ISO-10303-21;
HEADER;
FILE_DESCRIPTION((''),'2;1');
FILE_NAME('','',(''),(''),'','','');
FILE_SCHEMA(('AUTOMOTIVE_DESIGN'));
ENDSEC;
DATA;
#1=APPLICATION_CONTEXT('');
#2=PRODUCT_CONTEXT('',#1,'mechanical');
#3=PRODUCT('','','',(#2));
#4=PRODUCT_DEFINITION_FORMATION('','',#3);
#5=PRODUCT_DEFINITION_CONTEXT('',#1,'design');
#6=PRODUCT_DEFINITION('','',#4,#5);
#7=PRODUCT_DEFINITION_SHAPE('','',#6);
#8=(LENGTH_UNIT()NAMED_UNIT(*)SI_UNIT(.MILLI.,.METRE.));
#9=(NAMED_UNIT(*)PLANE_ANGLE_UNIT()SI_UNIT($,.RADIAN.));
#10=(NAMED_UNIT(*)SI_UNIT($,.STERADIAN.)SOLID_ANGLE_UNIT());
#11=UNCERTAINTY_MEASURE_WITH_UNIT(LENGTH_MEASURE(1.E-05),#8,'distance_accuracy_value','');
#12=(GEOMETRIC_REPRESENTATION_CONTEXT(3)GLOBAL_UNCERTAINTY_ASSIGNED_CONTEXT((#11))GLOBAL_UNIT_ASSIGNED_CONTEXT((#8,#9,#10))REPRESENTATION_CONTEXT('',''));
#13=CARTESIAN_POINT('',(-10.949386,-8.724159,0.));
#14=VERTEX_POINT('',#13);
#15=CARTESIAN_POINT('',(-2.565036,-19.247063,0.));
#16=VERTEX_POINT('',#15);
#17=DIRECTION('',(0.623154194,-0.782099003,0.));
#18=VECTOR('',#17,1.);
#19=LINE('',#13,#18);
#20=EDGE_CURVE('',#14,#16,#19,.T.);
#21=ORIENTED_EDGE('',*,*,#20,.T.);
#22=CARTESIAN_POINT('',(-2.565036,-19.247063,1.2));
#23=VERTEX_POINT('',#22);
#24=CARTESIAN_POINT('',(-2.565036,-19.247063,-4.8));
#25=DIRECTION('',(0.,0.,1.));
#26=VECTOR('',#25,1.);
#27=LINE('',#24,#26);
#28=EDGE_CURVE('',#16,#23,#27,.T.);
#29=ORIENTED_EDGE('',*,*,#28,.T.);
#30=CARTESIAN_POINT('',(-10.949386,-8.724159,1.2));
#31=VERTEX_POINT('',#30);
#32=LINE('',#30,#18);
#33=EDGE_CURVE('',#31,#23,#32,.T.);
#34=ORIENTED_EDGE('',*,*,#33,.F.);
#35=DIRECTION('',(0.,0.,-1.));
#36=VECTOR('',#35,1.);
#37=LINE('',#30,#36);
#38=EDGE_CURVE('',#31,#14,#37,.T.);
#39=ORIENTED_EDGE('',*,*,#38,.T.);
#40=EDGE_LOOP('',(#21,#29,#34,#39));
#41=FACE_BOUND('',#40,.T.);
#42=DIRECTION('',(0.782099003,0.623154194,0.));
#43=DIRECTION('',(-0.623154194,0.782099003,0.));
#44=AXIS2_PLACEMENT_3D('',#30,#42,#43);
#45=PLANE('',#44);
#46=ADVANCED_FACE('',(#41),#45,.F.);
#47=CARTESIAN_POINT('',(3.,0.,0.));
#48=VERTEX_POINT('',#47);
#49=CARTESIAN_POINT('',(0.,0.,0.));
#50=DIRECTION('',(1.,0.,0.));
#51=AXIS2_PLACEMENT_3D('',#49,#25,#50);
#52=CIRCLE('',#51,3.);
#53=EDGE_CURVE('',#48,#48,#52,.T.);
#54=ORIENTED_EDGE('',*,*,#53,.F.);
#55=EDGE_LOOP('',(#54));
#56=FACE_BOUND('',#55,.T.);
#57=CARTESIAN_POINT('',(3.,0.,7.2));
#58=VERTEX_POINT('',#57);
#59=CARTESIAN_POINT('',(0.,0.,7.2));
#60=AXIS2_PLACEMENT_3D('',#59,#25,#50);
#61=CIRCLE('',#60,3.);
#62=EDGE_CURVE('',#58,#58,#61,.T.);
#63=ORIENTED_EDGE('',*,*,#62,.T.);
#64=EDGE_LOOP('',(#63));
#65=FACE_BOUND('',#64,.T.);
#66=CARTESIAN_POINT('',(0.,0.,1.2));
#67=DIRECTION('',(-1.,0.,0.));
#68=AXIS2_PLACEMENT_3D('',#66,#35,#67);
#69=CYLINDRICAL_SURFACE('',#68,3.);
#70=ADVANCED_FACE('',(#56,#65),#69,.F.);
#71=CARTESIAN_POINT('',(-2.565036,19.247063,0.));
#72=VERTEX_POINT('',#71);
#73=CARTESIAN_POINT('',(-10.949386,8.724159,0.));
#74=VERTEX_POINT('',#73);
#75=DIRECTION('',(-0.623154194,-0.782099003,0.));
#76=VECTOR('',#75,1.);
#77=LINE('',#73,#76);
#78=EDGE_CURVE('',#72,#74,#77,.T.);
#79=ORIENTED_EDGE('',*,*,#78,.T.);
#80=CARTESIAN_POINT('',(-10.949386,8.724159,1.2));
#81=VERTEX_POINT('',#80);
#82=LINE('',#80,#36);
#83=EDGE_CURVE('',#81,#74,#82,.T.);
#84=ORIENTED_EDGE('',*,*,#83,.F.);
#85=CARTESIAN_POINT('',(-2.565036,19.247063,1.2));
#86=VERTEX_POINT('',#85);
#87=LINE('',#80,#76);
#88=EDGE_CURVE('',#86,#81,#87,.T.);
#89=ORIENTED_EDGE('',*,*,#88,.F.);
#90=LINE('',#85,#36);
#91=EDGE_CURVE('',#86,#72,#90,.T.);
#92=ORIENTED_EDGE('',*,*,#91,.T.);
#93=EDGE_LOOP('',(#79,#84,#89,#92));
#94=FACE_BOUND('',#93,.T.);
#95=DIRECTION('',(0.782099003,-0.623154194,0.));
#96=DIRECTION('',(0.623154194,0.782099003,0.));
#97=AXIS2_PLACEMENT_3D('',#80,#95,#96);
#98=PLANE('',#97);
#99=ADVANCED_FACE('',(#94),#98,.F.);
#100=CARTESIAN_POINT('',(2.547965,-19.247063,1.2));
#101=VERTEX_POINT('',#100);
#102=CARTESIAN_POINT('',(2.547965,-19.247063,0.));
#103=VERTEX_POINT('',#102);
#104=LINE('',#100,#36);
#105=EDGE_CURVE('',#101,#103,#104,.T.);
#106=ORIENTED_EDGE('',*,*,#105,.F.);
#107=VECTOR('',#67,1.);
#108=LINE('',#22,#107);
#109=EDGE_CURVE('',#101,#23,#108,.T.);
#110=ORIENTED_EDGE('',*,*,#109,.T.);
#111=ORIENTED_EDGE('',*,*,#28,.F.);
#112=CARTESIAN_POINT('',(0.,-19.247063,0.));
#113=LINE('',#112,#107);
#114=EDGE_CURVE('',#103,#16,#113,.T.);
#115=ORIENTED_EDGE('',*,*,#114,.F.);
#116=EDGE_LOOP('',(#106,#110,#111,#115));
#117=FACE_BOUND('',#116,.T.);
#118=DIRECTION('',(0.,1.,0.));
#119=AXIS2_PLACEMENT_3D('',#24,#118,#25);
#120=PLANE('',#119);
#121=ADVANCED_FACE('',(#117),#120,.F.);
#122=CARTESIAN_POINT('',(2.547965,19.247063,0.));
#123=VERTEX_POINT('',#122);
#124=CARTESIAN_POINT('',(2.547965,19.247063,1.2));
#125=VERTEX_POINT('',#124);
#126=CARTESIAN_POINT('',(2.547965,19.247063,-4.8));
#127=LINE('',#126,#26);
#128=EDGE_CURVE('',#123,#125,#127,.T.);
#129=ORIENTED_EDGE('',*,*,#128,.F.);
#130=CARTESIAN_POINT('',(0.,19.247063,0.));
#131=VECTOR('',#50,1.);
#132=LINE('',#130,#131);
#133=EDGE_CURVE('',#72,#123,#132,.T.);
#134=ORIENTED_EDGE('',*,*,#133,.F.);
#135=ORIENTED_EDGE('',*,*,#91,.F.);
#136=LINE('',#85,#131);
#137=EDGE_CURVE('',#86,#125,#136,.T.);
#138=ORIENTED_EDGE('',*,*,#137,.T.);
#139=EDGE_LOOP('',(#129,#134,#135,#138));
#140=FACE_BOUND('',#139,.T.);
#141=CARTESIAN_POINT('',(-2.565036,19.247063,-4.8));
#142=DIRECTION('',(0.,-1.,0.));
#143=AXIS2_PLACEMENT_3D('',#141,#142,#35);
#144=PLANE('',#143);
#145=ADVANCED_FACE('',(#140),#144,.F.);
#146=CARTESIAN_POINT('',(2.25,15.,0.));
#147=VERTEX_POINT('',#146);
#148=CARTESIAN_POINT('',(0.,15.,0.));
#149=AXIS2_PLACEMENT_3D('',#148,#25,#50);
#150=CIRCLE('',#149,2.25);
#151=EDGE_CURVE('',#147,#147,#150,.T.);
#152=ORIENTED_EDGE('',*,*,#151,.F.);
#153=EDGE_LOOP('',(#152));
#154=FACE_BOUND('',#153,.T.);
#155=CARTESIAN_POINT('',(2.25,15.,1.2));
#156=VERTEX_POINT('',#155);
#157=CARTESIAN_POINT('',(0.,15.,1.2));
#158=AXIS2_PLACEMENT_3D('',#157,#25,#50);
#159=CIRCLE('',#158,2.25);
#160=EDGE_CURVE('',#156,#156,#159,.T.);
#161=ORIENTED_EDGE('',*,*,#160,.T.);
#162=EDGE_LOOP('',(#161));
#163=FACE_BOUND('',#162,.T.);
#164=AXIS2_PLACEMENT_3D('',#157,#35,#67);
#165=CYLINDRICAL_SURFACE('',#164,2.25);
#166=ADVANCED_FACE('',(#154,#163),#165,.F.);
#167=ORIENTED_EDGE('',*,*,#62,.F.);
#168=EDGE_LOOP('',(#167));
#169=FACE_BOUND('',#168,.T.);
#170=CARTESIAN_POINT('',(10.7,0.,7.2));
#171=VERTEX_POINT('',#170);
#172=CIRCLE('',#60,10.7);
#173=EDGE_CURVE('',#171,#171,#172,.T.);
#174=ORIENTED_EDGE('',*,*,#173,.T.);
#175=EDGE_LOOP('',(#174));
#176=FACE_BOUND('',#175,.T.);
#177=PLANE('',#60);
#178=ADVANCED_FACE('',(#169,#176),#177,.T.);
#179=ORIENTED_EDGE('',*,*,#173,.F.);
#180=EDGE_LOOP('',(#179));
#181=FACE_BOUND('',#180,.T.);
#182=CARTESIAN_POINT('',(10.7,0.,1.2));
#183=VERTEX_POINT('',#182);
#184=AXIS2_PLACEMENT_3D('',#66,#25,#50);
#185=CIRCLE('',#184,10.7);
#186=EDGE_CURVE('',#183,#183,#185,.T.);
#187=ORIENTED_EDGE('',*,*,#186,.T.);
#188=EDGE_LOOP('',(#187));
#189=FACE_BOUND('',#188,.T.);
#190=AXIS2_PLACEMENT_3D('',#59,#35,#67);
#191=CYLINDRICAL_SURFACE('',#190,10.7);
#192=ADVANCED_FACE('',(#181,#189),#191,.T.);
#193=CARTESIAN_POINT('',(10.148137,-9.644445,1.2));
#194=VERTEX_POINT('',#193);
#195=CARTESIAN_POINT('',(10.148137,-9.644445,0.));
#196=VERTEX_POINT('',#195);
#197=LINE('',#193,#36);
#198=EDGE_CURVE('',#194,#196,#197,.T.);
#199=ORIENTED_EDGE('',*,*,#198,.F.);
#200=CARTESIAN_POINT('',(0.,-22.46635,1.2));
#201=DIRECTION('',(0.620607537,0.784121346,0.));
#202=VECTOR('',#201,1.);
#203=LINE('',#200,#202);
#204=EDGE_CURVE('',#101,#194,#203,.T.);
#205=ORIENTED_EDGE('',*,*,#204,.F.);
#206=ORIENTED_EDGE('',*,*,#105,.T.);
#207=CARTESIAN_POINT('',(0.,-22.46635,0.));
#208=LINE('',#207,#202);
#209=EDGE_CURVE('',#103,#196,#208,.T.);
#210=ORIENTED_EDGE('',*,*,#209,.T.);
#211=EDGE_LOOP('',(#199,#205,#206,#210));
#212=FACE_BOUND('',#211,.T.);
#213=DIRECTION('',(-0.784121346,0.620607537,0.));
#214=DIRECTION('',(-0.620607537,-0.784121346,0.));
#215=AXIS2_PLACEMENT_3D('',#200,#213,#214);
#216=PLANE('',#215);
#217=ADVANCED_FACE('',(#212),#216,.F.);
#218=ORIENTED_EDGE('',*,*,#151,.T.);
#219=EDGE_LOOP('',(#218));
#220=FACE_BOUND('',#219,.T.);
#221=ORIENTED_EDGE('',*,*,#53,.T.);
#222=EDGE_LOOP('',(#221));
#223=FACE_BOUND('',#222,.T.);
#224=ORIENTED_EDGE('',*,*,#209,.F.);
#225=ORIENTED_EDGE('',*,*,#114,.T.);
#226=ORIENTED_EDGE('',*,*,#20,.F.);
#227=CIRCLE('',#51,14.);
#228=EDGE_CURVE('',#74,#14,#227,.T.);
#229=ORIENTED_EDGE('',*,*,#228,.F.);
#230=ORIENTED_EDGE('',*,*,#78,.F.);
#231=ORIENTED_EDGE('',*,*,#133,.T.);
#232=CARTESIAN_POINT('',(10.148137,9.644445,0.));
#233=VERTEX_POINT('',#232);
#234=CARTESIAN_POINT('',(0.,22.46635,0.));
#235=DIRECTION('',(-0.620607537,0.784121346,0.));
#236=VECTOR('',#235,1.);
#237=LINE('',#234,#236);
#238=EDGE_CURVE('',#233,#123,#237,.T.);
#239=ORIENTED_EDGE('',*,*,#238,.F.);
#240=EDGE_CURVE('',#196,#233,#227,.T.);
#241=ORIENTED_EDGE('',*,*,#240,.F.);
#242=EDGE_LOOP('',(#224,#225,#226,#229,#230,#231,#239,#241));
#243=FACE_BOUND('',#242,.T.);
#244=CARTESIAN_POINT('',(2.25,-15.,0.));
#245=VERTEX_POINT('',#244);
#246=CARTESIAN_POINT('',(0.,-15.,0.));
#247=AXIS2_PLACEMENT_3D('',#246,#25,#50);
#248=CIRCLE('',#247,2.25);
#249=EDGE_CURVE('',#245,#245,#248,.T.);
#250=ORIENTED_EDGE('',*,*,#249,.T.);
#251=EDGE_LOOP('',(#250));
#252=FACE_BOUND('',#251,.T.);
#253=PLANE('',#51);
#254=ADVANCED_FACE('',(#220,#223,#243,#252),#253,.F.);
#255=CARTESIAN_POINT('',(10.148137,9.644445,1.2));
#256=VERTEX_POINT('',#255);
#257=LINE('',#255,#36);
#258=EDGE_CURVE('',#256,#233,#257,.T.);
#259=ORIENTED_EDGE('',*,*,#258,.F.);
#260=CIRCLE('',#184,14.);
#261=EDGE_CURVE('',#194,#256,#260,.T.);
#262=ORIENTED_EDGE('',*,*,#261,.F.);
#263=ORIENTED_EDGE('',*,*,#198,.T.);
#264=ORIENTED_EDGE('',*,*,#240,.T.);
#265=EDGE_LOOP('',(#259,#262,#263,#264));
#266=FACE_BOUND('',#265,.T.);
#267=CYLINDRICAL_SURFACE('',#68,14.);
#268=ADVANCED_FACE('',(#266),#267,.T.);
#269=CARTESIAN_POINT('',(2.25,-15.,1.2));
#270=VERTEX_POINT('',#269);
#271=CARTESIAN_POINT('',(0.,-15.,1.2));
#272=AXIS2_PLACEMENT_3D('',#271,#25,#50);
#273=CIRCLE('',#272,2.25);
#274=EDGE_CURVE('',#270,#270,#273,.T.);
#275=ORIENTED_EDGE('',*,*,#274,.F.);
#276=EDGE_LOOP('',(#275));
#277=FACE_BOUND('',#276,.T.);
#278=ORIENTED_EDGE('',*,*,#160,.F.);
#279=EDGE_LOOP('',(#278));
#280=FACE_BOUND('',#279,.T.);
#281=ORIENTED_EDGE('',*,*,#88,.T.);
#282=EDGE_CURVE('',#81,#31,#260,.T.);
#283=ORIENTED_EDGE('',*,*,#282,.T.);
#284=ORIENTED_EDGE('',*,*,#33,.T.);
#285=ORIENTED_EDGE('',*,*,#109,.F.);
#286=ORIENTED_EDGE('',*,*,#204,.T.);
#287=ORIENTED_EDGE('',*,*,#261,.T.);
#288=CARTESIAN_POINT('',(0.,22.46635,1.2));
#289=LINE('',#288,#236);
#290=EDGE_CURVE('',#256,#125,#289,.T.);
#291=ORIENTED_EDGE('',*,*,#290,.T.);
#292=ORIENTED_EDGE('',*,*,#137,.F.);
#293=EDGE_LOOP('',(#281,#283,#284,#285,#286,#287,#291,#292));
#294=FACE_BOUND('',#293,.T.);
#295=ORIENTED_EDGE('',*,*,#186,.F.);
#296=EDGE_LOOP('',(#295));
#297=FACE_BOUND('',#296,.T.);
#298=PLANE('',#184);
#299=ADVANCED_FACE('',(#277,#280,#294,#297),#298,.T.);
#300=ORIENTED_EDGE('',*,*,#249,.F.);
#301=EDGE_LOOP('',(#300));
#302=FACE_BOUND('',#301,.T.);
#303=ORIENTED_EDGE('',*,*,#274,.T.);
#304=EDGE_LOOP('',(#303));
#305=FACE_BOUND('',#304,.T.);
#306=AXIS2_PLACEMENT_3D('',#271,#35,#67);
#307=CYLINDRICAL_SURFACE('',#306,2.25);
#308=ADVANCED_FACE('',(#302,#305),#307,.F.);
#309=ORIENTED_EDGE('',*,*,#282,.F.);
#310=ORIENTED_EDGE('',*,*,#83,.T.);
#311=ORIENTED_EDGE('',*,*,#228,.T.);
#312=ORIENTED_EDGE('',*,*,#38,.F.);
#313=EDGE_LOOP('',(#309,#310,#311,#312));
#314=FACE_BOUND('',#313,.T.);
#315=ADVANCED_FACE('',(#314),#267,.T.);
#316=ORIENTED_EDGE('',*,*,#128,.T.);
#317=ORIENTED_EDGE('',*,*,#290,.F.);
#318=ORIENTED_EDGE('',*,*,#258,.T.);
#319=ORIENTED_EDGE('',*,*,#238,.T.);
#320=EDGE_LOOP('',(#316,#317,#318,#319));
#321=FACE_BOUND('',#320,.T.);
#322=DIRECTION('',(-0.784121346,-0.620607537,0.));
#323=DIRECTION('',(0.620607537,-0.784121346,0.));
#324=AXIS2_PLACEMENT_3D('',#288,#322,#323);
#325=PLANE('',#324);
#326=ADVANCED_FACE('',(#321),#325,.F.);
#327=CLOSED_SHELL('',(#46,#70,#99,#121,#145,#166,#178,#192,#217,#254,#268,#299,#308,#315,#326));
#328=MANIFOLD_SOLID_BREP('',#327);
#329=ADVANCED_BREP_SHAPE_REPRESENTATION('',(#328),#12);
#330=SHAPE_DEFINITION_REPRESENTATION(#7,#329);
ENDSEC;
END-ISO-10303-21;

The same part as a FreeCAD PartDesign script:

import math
import FreeCAD as App
import Part
import Sketcher
from FreeCAD import Vector

doc = App.newDocument("Part")
body = doc.addObject("PartDesign::Body", "Body")

# Sketch on XY plane
sketch1 = body.newObject("Sketcher::SketchObject", "Sketch")
sketch1.AttachmentSupport = (doc.getObject("XY_Plane"), [""])
sketch1.MapMode = "FlatFace"
sketch1.addGeometry(Part.LineSegment(Vector(0, 22.5, 0), Vector(-10.9, 8.7, 0)), False)
sketch1.addGeometry(Part.ArcOfCircle(Part.Circle(Vector(0, 0, 0), Vector(0, 0, 1), 14), math.radians(141), math.radians(219)), False)
sketch1.addGeometry(Part.LineSegment(Vector(-10.9, -8.7, 0), Vector(0, -22.5, 0)), False)
sketch1.addGeometry(Part.LineSegment(Vector(0, -22.5, 0), Vector(10.1, -9.6, 0)), False)
sketch1.addGeometry(Part.ArcOfCircle(Part.Circle(Vector(0, 0, 0), Vector(0, 0, 1), 14), math.radians(-44), math.radians(44)), False)
sketch1.addGeometry(Part.LineSegment(Vector(10.1, 9.6, 0), Vector(0, 22.5, 0)), False)
sketch1.addGeometry(Part.Circle(Vector(0, -15, 0), Vector(0, 0, 1), 2.2), False)
sketch1.addGeometry(Part.Circle(Vector(0, 0, 0), Vector(0, 0, 1), 3), False)
sketch1.addGeometry(Part.Circle(Vector(0, 15, 0), Vector(0, 0, 1), 2.2), False)
sketch1.addConstraint(Sketcher.Constraint("Tangent", 0, 2, 1, 1))
sketch1.addConstraint(Sketcher.Constraint("Tangent", 1, 2, 2, 1))
sketch1.addConstraint(Sketcher.Constraint("Coincident", 2, 2, 3, 1))
sketch1.addConstraint(Sketcher.Constraint("Coincident", 3, 2, 4, 1))
sketch1.addConstraint(Sketcher.Constraint("Coincident", 4, 2, 5, 1))
sketch1.addConstraint(Sketcher.Constraint("Coincident", 5, 2, 0, 1))
sketch1.addConstraint(Sketcher.Constraint("Coincident", 1, 3, -1, 1))
sketch1.addConstraint(Sketcher.Constraint("Coincident", 4, 3, -1, 1))
sketch1.addConstraint(Sketcher.Constraint("Coincident", 7, 3, -1, 1))
sketch1.addConstraint(Sketcher.Constraint("Equal", 1, 4))
sketch1.addConstraint(Sketcher.Constraint("Equal", 6, 8))
sketch1.addConstraint(Sketcher.Constraint("Symmetric", 6, 3, 8, 3, -1, 1))
sketch1.addConstraint(Sketcher.Constraint("Symmetric", 2, 2, 5, 2, -1, 1))
sketch1.addConstraint(Sketcher.Constraint("PointOnObject", 6, 3, -2))
sketch1.addConstraint(Sketcher.Constraint("PointOnObject", 2, 2, -2))
sketch1.addConstraint(Sketcher.Constraint("Vertical", 3, 2, 4, 2))
sketch1.addConstraint(Sketcher.Constraint("Diameter", 7, 6.0))
sketch1.addConstraint(Sketcher.Constraint("Radius", 1, 14.0))
sketch1.addConstraint(Sketcher.Constraint("Diameter", 6, 4.5))
sketch1.addConstraint(Sketcher.Constraint("DistanceY", 6, 3, -1, 1, 15.0))
sketch1.addConstraint(Sketcher.Constraint("Distance", 0, 17.57091))
sketch1.addConstraint(Sketcher.Constraint("Distance", 3, 16.351939))
pad1 = body.newObject("PartDesign::Pad", "Pad")
pad1.Profile = sketch1
pad1.Length = 1.2

# Sketch on XY plane
sketch2 = body.newObject("Sketcher::SketchObject", "Sketch001")
sketch2.AttachmentSupport = (doc.getObject("XY_Plane"), [""])
sketch2.MapMode = "FlatFace"
sketch2.AttachmentOffset = App.Placement(Vector(0, 0, 1.2), App.Rotation())
sketch2.addGeometry(Part.Circle(Vector(0, 0, 0), Vector(0, 0, 1), 10.7), False)
sketch2.addGeometry(Part.Circle(Vector(0, 0, 0), Vector(0, 0, 1), 3), False)
sketch2.addConstraint(Sketcher.Constraint("Coincident", 0, 3, -1, 1))
sketch2.addConstraint(Sketcher.Constraint("Coincident", 1, 3, -1, 1))
sketch2.addConstraint(Sketcher.Constraint("Diameter", 1, 6.0))
sketch2.addConstraint(Sketcher.Constraint("Diameter", 0, 21.4))
pad2 = body.newObject("PartDesign::Pad", "Pad001")
pad2.Profile = sketch2
pad2.Length = 6

# Sketch on XY plane
sketch3 = body.newObject("Sketcher::SketchObject", "Sketch002")
sketch3.AttachmentSupport = (doc.getObject("XY_Plane"), [""])
sketch3.MapMode = "FlatFace"
sketch3.AttachmentOffset = App.Placement(Vector(0, 0, 1.2), App.Rotation())
sketch3.addGeometry(Part.LineSegment(Vector(-2.6, 19.2, 0), Vector(2.5, 19.2, 0)), False)
sketch3.addGeometry(Part.LineSegment(Vector(2.5, 19.2, 0), Vector(0, 22.5, 0)), False)
sketch3.addGeometry(Part.LineSegment(Vector(0, 22.5, 0), Vector(-2.6, 19.2, 0)), False)
sketch3.addGeometry(Part.LineSegment(Vector(2.5, -19.2, 0), Vector(-2.6, -19.2, 0)), False)
sketch3.addGeometry(Part.LineSegment(Vector(-2.6, -19.2, 0), Vector(0, -22.5, 0)), False)
sketch3.addGeometry(Part.LineSegment(Vector(0, -22.5, 0), Vector(2.5, -19.2, 0)), False)
sketch3.addConstraint(Sketcher.Constraint("Coincident", 0, 2, 1, 1))
sketch3.addConstraint(Sketcher.Constraint("Coincident", 1, 2, 2, 1))
sketch3.addConstraint(Sketcher.Constraint("Coincident", 2, 2, 0, 1))
sketch3.addConstraint(Sketcher.Constraint("Coincident", 3, 2, 4, 1))
sketch3.addConstraint(Sketcher.Constraint("Coincident", 4, 2, 5, 1))
sketch3.addConstraint(Sketcher.Constraint("Coincident", 5, 2, 3, 1))
sketch3.addConstraint(Sketcher.Constraint("Horizontal", 0))
sketch3.addConstraint(Sketcher.Constraint("Horizontal", 3))
sketch3.addConstraint(Sketcher.Constraint("Symmetric", 1, 2, 4, 2, -1, 1))
sketch3.addConstraint(Sketcher.Constraint("Symmetric", 2, 2, 3, 2, -1))
sketch3.addConstraint(Sketcher.Constraint("PointOnObject", 1, 2, -2))
sketch3.addConstraint(Sketcher.Constraint("Vertical", 0, 2, 5, 2))
sketch3.addConstraint(Sketcher.Constraint("DistanceX", 0, 1, 0, 2, 5.113001))
sketch3.addConstraint(Sketcher.Constraint("Distance", 1, 4.105598))
sketch3.addConstraint(Sketcher.Constraint("DistanceY", 4, 2, 1, 2, 44.932699))
sketch3.addConstraint(Sketcher.Constraint("Distance", 2, 4.116214))
pocket1 = body.newObject("PartDesign::Pocket", "Pocket")
pocket1.Profile = sketch3
pocket1.Length = 6

doc.recompute()
